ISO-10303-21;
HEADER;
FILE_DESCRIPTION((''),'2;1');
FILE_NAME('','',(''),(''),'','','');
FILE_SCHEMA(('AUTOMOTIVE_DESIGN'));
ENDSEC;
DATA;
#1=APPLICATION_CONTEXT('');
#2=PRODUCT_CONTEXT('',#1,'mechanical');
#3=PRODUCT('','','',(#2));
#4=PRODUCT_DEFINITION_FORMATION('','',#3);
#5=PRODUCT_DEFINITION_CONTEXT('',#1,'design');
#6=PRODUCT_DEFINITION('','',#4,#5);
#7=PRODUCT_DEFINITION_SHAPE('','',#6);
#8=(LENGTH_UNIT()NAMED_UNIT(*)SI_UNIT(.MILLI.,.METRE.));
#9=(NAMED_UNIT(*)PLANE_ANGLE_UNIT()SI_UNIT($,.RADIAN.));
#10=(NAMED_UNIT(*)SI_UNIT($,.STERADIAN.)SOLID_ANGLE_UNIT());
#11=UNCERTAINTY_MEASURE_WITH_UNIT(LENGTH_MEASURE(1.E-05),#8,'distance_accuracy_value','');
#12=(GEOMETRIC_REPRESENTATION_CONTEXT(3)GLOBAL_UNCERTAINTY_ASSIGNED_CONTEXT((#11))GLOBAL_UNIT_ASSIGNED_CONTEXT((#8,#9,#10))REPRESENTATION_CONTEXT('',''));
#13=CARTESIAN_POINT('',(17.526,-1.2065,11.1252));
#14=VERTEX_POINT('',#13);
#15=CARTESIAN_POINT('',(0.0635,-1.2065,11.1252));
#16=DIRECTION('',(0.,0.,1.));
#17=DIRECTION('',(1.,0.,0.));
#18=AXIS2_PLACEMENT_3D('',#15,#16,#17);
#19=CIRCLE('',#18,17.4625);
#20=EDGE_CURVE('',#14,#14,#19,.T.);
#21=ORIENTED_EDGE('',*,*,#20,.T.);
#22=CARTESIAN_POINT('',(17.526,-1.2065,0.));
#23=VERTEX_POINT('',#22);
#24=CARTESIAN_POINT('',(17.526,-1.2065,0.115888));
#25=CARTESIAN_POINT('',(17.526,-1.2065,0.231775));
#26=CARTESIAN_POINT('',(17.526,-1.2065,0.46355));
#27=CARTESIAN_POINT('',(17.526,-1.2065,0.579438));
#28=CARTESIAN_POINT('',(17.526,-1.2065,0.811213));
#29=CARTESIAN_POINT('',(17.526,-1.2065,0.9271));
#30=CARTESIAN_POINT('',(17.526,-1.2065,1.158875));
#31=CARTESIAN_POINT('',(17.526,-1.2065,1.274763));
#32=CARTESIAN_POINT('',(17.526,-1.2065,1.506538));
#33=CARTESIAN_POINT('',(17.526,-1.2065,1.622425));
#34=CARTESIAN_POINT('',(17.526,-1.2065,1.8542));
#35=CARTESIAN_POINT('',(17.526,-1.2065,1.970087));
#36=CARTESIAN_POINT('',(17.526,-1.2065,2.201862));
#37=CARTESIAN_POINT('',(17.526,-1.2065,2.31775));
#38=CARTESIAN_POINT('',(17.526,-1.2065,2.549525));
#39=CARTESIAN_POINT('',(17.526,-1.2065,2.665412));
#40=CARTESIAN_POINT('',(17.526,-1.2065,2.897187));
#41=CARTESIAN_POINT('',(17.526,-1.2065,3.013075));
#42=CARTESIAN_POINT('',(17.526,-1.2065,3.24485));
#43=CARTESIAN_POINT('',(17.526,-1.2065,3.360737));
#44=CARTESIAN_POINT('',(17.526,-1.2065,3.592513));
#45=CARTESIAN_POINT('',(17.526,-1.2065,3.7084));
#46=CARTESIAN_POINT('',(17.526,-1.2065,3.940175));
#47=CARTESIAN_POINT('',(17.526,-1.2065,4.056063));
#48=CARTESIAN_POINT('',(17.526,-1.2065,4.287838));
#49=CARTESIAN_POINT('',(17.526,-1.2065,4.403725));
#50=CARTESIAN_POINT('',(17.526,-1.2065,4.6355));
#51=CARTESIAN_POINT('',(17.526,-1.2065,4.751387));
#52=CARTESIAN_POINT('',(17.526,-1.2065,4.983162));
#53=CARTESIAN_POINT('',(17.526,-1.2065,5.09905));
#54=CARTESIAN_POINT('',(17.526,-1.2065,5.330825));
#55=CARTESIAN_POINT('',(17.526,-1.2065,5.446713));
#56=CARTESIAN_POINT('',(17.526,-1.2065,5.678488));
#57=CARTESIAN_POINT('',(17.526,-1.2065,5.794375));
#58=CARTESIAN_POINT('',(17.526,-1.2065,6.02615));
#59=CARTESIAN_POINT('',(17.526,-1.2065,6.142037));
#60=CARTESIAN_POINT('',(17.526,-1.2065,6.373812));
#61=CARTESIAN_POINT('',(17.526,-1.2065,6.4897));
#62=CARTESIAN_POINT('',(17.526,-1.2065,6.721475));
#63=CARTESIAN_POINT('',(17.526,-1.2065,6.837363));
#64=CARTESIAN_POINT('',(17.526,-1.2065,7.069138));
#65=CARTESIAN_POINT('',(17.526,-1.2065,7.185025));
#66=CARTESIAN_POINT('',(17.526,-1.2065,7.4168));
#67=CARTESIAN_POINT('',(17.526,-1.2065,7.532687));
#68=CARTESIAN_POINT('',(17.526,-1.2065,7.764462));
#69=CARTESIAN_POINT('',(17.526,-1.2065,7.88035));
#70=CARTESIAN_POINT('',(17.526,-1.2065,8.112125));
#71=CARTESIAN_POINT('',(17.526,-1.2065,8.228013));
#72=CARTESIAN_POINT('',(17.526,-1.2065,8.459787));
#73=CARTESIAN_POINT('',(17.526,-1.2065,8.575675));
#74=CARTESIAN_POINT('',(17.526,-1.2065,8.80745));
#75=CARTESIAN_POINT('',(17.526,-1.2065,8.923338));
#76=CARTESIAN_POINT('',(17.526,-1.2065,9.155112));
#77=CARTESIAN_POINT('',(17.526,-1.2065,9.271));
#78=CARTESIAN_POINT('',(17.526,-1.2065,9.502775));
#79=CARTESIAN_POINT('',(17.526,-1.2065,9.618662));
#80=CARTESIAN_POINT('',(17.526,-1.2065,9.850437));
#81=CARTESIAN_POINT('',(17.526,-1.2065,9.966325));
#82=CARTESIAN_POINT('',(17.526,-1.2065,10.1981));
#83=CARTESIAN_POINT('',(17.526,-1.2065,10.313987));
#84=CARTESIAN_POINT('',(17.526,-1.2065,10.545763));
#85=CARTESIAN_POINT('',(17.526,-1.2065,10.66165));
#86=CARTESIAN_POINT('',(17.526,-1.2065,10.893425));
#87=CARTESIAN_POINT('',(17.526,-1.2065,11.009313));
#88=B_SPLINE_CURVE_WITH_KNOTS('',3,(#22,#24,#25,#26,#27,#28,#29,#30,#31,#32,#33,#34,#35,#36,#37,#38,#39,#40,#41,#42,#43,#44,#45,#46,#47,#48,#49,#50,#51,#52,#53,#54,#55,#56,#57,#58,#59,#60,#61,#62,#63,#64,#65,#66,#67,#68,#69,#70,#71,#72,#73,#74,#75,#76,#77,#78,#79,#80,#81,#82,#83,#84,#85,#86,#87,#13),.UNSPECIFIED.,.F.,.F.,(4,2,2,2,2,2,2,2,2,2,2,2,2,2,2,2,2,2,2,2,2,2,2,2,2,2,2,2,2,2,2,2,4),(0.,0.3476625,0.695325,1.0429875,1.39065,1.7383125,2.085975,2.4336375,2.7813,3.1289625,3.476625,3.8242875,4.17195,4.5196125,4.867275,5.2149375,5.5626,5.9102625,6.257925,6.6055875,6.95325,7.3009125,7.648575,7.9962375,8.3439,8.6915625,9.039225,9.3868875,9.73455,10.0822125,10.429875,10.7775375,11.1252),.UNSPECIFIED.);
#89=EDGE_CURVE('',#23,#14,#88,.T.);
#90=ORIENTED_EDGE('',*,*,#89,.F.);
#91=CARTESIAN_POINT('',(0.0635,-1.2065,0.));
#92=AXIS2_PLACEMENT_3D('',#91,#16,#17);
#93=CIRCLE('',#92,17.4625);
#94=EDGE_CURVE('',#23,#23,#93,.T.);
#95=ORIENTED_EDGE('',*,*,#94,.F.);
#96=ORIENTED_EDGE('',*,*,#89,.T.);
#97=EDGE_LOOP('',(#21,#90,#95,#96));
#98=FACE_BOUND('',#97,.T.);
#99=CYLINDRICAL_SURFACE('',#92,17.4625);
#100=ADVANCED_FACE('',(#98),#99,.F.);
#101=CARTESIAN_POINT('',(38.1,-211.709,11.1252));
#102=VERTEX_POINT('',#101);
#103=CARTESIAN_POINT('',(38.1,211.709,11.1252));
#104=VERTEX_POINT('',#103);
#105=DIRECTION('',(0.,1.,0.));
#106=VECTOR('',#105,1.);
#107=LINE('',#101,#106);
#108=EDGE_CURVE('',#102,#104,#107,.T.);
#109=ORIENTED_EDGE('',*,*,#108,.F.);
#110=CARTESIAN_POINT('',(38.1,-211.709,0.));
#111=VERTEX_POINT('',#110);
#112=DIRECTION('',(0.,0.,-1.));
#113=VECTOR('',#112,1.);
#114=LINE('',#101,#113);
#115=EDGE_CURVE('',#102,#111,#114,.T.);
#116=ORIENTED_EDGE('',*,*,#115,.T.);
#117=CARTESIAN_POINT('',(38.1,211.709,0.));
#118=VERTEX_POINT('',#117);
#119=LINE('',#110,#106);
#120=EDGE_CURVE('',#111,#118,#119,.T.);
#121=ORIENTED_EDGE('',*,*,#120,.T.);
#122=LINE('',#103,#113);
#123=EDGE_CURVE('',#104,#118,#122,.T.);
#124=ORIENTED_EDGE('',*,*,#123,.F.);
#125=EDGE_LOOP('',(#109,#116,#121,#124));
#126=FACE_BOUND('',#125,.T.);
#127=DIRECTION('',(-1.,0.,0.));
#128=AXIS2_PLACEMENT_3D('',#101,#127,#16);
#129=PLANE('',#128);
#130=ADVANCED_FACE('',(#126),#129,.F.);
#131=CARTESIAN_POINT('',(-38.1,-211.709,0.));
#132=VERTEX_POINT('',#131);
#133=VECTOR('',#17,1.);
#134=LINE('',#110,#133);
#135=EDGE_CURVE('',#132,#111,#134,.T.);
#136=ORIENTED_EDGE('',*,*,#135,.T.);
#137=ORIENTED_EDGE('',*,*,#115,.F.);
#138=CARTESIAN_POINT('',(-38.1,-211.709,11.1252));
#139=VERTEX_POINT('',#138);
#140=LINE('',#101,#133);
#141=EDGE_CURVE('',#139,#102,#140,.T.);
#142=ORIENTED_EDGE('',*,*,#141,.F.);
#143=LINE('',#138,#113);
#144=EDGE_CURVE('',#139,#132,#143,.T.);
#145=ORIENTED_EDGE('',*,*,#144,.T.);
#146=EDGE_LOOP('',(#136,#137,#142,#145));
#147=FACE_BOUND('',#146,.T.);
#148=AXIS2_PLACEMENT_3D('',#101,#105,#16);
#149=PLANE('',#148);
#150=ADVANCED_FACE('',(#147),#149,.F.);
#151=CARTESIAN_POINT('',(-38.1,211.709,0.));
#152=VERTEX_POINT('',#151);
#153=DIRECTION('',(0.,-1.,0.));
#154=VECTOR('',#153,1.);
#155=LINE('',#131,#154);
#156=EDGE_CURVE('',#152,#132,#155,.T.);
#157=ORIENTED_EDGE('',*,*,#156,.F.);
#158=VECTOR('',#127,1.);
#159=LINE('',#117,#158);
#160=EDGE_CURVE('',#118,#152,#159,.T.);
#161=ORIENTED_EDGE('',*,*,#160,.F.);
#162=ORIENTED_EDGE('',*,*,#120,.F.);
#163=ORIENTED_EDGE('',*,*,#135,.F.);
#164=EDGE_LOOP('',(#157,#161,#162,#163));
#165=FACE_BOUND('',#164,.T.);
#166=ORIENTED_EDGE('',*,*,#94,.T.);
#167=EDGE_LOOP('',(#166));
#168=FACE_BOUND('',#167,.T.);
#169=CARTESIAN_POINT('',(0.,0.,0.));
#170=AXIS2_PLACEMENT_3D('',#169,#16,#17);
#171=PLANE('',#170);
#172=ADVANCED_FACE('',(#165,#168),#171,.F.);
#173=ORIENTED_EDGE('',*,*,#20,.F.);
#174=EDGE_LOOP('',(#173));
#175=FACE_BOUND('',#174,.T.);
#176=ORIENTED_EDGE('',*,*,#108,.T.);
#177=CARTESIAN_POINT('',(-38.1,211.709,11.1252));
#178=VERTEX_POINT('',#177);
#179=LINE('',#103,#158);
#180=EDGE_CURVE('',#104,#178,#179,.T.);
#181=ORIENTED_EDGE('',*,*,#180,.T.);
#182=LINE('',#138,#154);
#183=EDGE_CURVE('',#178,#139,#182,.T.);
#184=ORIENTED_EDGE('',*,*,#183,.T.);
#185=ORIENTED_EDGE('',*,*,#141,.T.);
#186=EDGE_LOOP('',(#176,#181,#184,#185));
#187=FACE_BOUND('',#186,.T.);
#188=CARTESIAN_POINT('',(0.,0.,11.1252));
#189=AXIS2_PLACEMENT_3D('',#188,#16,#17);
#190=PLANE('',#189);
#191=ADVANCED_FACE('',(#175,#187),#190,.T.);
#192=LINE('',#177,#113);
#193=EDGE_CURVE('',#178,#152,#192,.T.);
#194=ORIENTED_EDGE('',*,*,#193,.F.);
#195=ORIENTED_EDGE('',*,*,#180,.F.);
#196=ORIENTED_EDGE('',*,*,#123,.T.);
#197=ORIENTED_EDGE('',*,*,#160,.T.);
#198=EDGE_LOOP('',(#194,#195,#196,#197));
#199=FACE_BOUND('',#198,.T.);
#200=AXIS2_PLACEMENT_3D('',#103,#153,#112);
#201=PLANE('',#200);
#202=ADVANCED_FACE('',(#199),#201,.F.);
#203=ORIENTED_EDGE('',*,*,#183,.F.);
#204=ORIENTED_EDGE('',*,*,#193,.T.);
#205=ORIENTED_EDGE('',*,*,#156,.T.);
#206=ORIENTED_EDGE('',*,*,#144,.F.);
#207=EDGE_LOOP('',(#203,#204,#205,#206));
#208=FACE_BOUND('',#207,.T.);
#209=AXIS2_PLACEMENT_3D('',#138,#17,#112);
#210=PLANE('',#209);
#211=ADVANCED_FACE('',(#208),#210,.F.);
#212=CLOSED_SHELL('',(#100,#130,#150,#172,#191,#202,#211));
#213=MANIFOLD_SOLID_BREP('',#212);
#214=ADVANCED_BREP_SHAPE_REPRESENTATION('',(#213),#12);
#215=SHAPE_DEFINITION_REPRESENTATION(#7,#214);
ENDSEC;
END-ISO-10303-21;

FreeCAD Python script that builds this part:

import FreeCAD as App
import Part
import Sketcher
from FreeCAD import Vector
Q = App.Units.Quantity

doc = App.newDocument("Part")
body = doc.addObject("PartDesign::Body", "Body")

# Sketch on XY plane
sketch1 = body.newObject("Sketcher::SketchObject", "Sketch")
sketch1.AttachmentSupport = (doc.getObject("XY_Plane"), [""])
sketch1.MapMode = "FlatFace"
sketch1.addGeometry(Part.LineSegment(Vector(-38, 212, 0), Vector(-38, -212, 0)), False)
sketch1.addGeometry(Part.LineSegment(Vector(-38, -212, 0), Vector(38, -212, 0)), False)
sketch1.addGeometry(Part.LineSegment(Vector(38, -212, 0), Vector(38, 212, 0)), False)
sketch1.addGeometry(Part.LineSegment(Vector(38, 212, 0), Vector(-38, 212, 0)), False)
sketch1.addConstraint(Sketcher.Constraint("Coincident", 0, 2, 1, 1))
sketch1.addConstraint(Sketcher.Constraint("Coincident", 1, 2, 2, 1))
sketch1.addConstraint(Sketcher.Constraint("Coincident", 2, 2, 3, 1))
sketch1.addConstraint(Sketcher.Constraint("Coincident", 3, 2, 0, 1))
sketch1.addConstraint(Sketcher.Constraint("Vertical", 0))
sketch1.addConstraint(Sketcher.Constraint("Horizontal", 1))
sketch1.addConstraint(Sketcher.Constraint("Vertical", 2))
sketch1.addConstraint(Sketcher.Constraint("Horizontal", 3))
sketch1.addConstraint(Sketcher.Constraint("Symmetric", 0, 2, 2, 2, -1, 1))
sketch1.addConstraint(Sketcher.Constraint("DistanceX", 1, 1, 1, 2, Q("3 in")))
sketch1.addConstraint(Sketcher.Constraint("DistanceY", 0, 2, 0, 1, Q("16.67 in")))
pad1 = body.newObject("PartDesign::Pad", "Pad")
pad1.Profile = sketch1
pad1.Length = Q("0.438 in")

# Sketch on XY plane
sketch2 = body.newObject("Sketcher::SketchObject", "Sketch001")
sketch2.AttachmentSupport = (doc.getObject("XY_Plane"), [""])
sketch2.MapMode = "FlatFace"
sketch2.AttachmentOffset = App.Placement(Vector(0, 0, 0.438 * 25.4), App.Rotation())
sketch2.addGeometry(Part.Circle(Vector(0, -1, 0), Vector(0, 0, 1), 17), False)
sketch2.addConstraint(Sketcher.Constraint("Diameter", 0, Q("1.375 in")))
sketch2.addConstraint(Sketcher.Constraint("DistanceX", -1, 1, 0, 3, Q("0.0025 in")))
sketch2.addConstraint(Sketcher.Constraint("DistanceY", 0, 3, -1, 1, Q("0.0475 in")))
pocket1 = body.newObject("PartDesign::Pocket", "Pocket")
pocket1.Profile = sketch2
pocket1.Type = "ThroughAll"

doc.recompute()
